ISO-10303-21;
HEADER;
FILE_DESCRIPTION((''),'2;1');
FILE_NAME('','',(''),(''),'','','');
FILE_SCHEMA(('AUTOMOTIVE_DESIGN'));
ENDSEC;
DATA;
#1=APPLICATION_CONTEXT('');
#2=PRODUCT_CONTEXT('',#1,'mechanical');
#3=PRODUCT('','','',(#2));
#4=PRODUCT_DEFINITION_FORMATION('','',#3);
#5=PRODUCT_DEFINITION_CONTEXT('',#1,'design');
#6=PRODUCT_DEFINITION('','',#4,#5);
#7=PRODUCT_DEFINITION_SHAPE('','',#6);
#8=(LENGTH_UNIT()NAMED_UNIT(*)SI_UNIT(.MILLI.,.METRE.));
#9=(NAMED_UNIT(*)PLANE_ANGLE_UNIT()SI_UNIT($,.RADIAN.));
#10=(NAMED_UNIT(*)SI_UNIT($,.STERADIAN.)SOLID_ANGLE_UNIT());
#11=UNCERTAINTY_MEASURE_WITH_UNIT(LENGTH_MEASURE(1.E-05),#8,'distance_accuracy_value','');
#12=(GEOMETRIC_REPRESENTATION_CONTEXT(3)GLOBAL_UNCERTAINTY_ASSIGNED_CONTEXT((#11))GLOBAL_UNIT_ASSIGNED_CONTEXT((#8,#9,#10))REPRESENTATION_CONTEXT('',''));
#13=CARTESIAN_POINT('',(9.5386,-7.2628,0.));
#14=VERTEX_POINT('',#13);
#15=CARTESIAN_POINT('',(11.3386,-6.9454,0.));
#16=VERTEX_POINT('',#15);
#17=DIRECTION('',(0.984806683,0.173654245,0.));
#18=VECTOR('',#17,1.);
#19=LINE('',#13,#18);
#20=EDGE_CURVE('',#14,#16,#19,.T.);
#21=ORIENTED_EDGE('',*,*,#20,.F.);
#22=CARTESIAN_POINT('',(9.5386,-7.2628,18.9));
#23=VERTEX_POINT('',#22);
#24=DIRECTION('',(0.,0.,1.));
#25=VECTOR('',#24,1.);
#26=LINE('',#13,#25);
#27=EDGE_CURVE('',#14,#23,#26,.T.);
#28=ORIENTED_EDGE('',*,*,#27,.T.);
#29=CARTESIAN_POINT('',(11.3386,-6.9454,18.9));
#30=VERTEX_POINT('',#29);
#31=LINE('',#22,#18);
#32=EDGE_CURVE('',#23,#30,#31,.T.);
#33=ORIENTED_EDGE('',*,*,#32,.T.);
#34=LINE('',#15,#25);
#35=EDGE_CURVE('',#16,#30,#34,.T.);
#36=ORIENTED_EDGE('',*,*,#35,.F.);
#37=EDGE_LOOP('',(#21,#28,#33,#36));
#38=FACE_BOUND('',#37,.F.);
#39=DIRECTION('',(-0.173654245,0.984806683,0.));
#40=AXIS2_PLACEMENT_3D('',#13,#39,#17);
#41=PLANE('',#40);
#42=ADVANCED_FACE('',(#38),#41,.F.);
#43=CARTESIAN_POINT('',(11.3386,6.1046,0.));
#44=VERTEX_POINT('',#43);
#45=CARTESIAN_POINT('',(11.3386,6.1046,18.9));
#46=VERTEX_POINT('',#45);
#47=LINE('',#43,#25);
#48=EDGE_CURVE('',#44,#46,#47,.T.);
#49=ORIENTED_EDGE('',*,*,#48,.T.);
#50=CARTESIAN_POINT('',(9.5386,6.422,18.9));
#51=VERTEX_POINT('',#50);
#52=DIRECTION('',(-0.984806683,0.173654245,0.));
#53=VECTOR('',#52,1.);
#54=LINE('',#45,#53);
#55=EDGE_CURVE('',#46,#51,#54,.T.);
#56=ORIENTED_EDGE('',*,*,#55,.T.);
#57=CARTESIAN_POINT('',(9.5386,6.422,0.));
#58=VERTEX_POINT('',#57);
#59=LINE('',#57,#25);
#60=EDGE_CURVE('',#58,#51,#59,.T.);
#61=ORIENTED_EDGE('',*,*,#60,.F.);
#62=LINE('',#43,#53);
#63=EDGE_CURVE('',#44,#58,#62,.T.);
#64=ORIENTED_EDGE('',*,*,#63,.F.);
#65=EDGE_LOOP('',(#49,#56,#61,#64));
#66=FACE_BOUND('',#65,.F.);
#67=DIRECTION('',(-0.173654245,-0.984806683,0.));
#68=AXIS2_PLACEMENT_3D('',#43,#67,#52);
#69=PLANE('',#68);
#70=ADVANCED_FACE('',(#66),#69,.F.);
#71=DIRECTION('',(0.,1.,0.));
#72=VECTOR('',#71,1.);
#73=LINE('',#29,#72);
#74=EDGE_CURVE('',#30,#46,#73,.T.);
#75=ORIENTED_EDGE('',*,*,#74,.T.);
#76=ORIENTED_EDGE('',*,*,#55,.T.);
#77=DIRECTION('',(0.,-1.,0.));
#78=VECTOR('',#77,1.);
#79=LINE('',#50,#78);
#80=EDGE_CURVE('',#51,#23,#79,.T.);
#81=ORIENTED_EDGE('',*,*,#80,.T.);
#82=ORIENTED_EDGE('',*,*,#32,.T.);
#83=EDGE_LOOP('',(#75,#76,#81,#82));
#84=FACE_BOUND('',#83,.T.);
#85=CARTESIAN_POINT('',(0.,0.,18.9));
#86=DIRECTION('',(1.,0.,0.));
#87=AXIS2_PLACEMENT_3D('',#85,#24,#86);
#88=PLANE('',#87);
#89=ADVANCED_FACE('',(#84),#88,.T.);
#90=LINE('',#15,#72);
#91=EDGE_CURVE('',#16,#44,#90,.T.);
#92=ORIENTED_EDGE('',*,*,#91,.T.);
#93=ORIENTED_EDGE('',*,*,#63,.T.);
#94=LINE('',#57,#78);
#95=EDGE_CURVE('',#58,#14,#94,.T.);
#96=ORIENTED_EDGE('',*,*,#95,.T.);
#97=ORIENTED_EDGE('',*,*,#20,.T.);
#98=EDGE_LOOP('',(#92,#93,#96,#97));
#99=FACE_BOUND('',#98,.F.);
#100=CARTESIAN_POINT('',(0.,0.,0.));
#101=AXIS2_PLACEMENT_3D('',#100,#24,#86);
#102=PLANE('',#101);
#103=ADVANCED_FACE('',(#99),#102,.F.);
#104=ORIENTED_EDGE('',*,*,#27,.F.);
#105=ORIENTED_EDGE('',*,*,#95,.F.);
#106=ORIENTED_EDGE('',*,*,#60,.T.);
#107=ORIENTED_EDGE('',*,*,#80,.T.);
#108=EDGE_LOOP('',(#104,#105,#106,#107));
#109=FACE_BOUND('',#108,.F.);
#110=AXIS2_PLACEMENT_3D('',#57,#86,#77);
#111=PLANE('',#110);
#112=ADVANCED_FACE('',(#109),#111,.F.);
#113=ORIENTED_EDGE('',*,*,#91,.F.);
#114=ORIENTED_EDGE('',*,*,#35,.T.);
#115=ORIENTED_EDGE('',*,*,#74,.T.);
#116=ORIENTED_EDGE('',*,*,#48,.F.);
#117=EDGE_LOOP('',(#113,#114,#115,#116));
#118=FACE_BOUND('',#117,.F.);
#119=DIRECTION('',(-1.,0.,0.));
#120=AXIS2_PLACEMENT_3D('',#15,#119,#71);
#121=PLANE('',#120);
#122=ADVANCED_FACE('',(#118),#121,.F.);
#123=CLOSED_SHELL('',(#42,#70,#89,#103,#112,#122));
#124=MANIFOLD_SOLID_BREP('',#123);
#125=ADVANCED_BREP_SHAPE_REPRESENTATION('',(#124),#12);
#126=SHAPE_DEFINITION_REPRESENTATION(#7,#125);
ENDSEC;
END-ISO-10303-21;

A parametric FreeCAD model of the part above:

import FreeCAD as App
import Part
import Sketcher
Q = App.Units.Quantity

doc = App.newDocument("Part")
body = doc.addObject("PartDesign::Body", "Body")

# Sketch on XY plane
sketch1 = body.newObject("Sketcher::SketchObject", "Sketch")
sketch1.AttachmentSupport = (doc.getObject("XY_Plane"), [""])
sketch1.MapMode = "FlatFace"
sketch1.addGeometry([
    Part.LineSegment(App.Vector(11.3386, -6.9454, 0), App.Vector(11.3386, 6.1046, 0)),
    Part.LineSegment(App.Vector(11.3386, 6.1046, 0), App.Vector(9.5386, 6.422, 0)),
    Part.LineSegment(App.Vector(9.5386, 6.422, 0), App.Vector(9.5386, -7.2628, 0)),
    Part.LineSegment(App.Vector(9.5386, -7.2628, 0), App.Vector(11.3386, -6.9454, 0)),
], False)
sketch1.addConstraint([
    Sketcher.Constraint("Coincident", 0, 2, 1, 1),
    Sketcher.Constraint("Coincident", 1, 2, 2, 1),
    Sketcher.Constraint("Coincident", 2, 2, 3, 1),
    Sketcher.Constraint("Coincident", 3, 2, 0, 1),
    Sketcher.Constraint("Vertical", 0),
    Sketcher.Constraint("Vertical", 2),
    Sketcher.Constraint("Equal", 1, 3),
    Sketcher.Constraint("Angle", 1, Q("169.9996 deg")),
    Sketcher.Constraint("DistanceY", 0, 1, 0, 2, 13.05),
    Sketcher.Constraint("DistanceX", 1, 2, 0, 2, 1.8),
    Sketcher.Constraint("DistanceY", -1, 1, 1, 2, 6.422),
    Sketcher.Constraint("DistanceX", -1, 1, 0, 2, 11.3386),
])
pad1 = body.newObject("PartDesign::Pad", "Pad")
pad1.Profile = sketch1
pad1.Length = 18.9

doc.recompute()
